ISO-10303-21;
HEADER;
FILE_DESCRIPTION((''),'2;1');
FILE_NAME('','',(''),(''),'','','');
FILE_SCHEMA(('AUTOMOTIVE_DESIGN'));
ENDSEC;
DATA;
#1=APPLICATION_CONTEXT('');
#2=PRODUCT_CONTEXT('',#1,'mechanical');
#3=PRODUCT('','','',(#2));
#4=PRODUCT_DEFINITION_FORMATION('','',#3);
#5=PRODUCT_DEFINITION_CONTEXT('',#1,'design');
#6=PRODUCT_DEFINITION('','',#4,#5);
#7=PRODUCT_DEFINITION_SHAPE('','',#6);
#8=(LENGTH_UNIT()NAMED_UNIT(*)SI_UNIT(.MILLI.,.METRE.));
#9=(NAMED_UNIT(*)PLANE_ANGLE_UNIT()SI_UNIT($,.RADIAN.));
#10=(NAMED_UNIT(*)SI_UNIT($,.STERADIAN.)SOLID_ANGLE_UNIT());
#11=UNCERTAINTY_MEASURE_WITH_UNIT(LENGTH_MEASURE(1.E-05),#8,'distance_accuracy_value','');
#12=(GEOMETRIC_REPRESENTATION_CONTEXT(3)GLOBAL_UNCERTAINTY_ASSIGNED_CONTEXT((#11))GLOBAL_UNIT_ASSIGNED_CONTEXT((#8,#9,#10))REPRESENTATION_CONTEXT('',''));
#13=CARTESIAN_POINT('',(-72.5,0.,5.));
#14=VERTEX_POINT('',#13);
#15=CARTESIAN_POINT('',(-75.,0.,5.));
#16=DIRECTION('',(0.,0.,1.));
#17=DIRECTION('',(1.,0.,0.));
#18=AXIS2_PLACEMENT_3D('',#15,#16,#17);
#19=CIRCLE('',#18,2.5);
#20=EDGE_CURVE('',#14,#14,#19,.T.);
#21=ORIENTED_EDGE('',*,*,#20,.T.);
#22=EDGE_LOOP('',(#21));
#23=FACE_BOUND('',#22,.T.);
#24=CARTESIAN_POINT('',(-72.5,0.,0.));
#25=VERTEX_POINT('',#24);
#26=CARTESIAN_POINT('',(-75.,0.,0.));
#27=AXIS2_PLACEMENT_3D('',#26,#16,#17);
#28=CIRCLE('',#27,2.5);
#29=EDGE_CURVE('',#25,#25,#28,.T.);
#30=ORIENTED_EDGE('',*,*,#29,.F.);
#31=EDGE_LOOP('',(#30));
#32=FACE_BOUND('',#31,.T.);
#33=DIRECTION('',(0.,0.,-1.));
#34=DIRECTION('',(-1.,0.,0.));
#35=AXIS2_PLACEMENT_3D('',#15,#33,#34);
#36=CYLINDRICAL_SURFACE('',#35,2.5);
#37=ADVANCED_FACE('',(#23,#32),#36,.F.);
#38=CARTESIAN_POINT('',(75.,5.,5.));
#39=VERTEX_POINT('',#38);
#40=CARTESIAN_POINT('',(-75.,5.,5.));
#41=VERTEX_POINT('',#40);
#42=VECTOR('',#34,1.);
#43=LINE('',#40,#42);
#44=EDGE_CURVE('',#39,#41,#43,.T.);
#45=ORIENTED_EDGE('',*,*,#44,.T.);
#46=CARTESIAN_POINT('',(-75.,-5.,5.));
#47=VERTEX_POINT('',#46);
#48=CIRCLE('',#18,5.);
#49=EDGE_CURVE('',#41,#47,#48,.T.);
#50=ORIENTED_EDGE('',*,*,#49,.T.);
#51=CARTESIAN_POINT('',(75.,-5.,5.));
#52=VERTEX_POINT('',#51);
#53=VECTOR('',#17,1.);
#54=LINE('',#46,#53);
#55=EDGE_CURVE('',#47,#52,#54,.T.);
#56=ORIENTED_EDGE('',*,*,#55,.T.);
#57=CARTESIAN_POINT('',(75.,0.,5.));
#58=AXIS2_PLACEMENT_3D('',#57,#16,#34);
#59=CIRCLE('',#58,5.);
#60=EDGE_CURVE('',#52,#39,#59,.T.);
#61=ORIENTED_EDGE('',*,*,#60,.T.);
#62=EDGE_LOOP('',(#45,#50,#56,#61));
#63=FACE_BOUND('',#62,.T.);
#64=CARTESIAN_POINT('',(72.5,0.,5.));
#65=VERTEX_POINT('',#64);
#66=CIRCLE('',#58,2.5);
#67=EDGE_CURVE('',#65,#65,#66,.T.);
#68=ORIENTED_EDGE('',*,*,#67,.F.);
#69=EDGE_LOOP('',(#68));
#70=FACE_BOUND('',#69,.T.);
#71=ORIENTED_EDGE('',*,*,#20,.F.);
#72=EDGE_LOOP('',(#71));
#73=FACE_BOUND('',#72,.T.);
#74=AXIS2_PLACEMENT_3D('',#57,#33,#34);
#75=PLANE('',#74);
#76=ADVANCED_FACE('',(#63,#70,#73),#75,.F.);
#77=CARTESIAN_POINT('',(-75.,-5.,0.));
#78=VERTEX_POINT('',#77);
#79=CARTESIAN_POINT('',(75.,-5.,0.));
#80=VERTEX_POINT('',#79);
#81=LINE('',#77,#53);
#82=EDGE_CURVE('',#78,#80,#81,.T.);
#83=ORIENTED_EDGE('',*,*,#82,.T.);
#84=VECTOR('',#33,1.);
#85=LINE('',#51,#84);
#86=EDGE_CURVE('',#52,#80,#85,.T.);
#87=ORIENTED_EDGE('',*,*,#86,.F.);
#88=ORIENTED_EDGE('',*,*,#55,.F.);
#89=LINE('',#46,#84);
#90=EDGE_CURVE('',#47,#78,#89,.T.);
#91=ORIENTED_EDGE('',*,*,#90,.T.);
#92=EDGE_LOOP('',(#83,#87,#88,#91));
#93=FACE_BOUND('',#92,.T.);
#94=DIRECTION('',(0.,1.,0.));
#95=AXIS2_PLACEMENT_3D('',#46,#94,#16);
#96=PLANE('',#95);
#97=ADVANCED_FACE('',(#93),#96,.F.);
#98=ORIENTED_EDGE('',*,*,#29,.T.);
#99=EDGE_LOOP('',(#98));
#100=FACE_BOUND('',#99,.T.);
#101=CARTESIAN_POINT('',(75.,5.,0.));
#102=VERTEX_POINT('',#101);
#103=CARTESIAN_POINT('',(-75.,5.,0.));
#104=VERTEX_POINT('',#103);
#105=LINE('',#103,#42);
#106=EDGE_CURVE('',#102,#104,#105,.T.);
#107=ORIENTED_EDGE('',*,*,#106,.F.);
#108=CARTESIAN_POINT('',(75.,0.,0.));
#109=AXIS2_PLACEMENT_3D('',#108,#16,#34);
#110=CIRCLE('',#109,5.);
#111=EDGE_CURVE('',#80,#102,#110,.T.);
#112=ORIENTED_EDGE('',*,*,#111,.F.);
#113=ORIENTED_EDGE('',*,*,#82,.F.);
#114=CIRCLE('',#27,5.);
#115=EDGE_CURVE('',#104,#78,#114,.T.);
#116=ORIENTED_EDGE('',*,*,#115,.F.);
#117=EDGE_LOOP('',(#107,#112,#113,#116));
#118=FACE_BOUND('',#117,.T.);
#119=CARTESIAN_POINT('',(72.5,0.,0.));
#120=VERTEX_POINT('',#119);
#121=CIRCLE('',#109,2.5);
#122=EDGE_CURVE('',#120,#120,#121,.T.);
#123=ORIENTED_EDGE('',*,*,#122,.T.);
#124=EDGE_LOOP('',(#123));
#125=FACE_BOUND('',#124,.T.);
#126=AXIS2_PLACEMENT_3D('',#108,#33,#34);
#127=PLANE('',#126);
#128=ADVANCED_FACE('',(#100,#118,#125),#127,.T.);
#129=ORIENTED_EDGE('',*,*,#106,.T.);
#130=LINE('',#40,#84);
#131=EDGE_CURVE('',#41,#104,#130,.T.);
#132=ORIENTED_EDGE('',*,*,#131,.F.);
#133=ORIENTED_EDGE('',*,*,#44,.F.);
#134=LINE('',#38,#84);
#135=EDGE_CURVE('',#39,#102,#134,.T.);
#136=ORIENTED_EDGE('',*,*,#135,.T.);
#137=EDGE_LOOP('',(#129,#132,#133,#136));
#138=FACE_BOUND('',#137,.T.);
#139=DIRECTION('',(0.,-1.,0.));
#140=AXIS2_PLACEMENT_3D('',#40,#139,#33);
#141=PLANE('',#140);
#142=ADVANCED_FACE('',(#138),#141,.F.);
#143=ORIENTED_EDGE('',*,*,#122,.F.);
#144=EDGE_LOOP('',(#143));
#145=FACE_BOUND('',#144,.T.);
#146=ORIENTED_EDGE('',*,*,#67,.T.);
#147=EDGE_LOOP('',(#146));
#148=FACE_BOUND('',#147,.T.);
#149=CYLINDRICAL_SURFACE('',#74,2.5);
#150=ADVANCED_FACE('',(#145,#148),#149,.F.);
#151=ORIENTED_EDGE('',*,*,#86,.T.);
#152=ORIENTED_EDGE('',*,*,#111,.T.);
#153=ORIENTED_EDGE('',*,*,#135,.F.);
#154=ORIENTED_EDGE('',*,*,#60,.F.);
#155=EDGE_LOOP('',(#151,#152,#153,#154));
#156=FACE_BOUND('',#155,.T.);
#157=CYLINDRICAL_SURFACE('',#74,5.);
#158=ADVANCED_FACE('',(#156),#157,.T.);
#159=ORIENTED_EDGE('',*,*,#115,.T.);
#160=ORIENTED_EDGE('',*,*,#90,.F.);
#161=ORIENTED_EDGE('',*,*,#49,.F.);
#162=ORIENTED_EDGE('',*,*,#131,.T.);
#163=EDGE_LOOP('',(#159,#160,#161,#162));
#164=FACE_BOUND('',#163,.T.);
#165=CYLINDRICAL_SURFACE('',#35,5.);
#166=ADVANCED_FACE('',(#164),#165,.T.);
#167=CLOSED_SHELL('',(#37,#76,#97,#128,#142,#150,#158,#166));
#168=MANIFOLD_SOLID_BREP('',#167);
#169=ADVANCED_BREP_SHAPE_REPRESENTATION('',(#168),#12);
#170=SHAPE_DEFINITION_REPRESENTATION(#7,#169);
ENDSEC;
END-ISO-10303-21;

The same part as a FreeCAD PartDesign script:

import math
import FreeCAD as App
import Part
import Sketcher

V = App.Vector
Q = App.Units.Quantity

doc = App.newDocument("Part")
body = doc.addObject("PartDesign::Body", "Body")

sketch1 = body.newObject("Sketcher::SketchObject", "Sketch")
sketch1.AttachmentSupport = (doc.getObject("XY_Plane"), [""])
sketch1.MapMode = "FlatFace"
sketch1.addGeometry([
    Part.LineSegment(V(75, 5, 0), V(-75, 5, 0)),
    Part.ArcOfCircle(Part.Circle(V(-75, 0, 0), V(0, 0, 1), 5), math.radians(90), math.radians(270)),
    Part.LineSegment(V(-75, -5, 0), V(75, -5, 0)),
    Part.ArcOfCircle(Part.Circle(V(75, 0, 0), V(0, 0, 1), 5), math.radians(-90), math.radians(90)),
    Part.Circle(V(75, 0, 0), V(0, 0, 1), 2.5),
    Part.Circle(V(-75, 0, 0), V(0, 0, 1), 2.5),
], False)
sketch1.addConstraint([
    Sketcher.Constraint("Tangent", 0, 2, 1, 1),
    Sketcher.Constraint("Tangent", 1, 2, 2, 1),
    Sketcher.Constraint("Tangent", 2, 2, 3, 1),
    Sketcher.Constraint("Tangent", 3, 2, 0, 1),
    Sketcher.Constraint("Horizontal", 0),
    Sketcher.Constraint("Horizontal", 2),
    Sketcher.Constraint("Coincident", 4, 3, 3, 3),
    Sketcher.Constraint("Coincident", 5, 3, 1, 3),
    Sketcher.Constraint("Equal", 4, 5),
    Sketcher.Constraint("Symmetric", 1, 3, 3, 3, -1, 1),
    Sketcher.Constraint("Diameter", 4, Q("5 mm")),
    Sketcher.Constraint("Radius", 1, Q("5 mm")),
    Sketcher.Constraint("DistanceX", 0, 2, 0, 1, Q("150 mm")),
])
pad1 = body.newObject("PartDesign::Pad", "Pad")
pad1.Profile = sketch1
pad1.Length = 5

doc.recompute()
